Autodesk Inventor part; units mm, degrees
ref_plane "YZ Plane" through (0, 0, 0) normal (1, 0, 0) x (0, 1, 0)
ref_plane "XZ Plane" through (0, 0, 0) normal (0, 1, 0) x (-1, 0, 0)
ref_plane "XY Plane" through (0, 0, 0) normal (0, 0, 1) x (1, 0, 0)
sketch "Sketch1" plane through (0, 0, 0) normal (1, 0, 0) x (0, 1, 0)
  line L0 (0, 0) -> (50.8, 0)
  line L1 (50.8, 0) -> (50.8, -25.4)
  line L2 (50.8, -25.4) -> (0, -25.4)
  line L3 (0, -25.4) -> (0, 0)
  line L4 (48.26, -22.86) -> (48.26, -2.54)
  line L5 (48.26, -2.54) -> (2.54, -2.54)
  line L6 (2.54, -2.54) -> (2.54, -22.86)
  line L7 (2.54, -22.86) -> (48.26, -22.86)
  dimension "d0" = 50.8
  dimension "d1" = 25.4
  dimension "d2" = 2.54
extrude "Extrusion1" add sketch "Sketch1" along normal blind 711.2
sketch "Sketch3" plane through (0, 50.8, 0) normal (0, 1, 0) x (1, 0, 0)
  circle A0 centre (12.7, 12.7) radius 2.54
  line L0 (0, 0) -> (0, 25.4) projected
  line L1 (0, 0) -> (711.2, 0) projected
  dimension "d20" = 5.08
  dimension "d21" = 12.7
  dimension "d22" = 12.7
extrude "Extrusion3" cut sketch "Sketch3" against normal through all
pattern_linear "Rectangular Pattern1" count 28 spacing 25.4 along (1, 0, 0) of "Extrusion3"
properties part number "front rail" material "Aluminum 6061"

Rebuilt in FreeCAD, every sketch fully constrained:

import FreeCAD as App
import Part
import Sketcher
Q = App.Units.Quantity

doc = App.newDocument("Part")
params = doc.addObject("Spreadsheet::Sheet", "Params")
for row, (alias, value) in enumerate([
    ("sketch1_width", "2 in"),
    ("sketch1_height", "1 in"),
    ("pad1_length", "28 in"),
    ("sketch2_diameter", "0.2 in"),
    ("linearpattern_pitch", "1 in"),
], start=1):
    params.set(f"A{row}", alias)
    params.set(f"B{row}", "=" + value)
    params.setAlias(f"B{row}", alias)

body = doc.addObject("PartDesign::Body", "Body")

# Sketch on YZ plane
sketch1 = body.newObject("Sketcher::SketchObject", "Sketch")
sketch1.AttachmentSupport = (doc.getObject("YZ_Plane"), [""])
sketch1.MapMode = "FlatFace"
sketch1.addGeometry(Part.LineSegment(App.Vector(51, 0, 0), App.Vector(0, 0, 0)), False)
sketch1.addGeometry(Part.LineSegment(App.Vector(0, 0, 0), App.Vector(0, -25, 0)), False)
sketch1.addGeometry(Part.LineSegment(App.Vector(0, -25, 0), App.Vector(51, -25, 0)), False)
sketch1.addGeometry(Part.LineSegment(App.Vector(51, -25, 0), App.Vector(51, 0, 0)), False)
sketch1.addGeometry(Part.LineSegment(App.Vector(48, -3, 0), App.Vector(48, -23, 0)), False)
sketch1.addGeometry(Part.LineSegment(App.Vector(48, -23, 0), App.Vector(3, -23, 0)), False)
sketch1.addGeometry(Part.LineSegment(App.Vector(3, -23, 0), App.Vector(3, -3, 0)), False)
sketch1.addGeometry(Part.LineSegment(App.Vector(3, -3, 0), App.Vector(48, -3, 0)), False)
sketch1.addConstraint(Sketcher.Constraint("Coincident", 0, 2, 1, 1))
sketch1.addConstraint(Sketcher.Constraint("Coincident", 1, 2, 2, 1))
sketch1.addConstraint(Sketcher.Constraint("Coincident", 2, 2, 3, 1))
sketch1.addConstraint(Sketcher.Constraint("Coincident", 3, 2, 0, 1))
sketch1.addConstraint(Sketcher.Constraint("Coincident", 4, 2, 5, 1))
sketch1.addConstraint(Sketcher.Constraint("Coincident", 5, 2, 6, 1))
sketch1.addConstraint(Sketcher.Constraint("Coincident", 6, 2, 7, 1))
sketch1.addConstraint(Sketcher.Constraint("Coincident", 7, 2, 4, 1))
sketch1.addConstraint(Sketcher.Constraint("Horizontal", 0))
sketch1.addConstraint(Sketcher.Constraint("Vertical", 1))
sketch1.addConstraint(Sketcher.Constraint("Horizontal", 2))
sketch1.addConstraint(Sketcher.Constraint("Vertical", 3))
sketch1.addConstraint(Sketcher.Constraint("Vertical", 4))
sketch1.addConstraint(Sketcher.Constraint("Horizontal", 5))
sketch1.addConstraint(Sketcher.Constraint("Vertical", 6))
sketch1.addConstraint(Sketcher.Constraint("Horizontal", 7))
sketch1.addConstraint(Sketcher.Constraint("Coincident", 0, 2, -1, 1))
sketch1.addConstraint(Sketcher.Constraint("DistanceX", 0, 2, 0, 1, Q("2 in")))
sketch1.addConstraint(Sketcher.Constraint("DistanceY", 1, 2, 1, 1, Q("1 in")))
sketch1.addConstraint(Sketcher.Constraint("DistanceX", -1, 1, 5, 2, Q("0.1 in")))
sketch1.addConstraint(Sketcher.Constraint("DistanceY", 6, 2, -1, 1, Q("0.1 in")))
sketch1.addConstraint(Sketcher.Constraint("DistanceX", 4, 2, 2, 2, Q("0.1 in")))
sketch1.addConstraint(Sketcher.Constraint("DistanceY", 2, 2, 4, 2, Q("0.1 in")))
sketch1.setExpression("Constraints[17]", "Params.sketch1_width")
sketch1.setExpression("Constraints[18]", "Params.sketch1_height")
pad1 = body.newObject("PartDesign::Pad", "Pad")
pad1.Profile = sketch1
pad1.setExpression("Length", "Params.pad1_length")

# Sketch on XZ plane
sketch2 = body.newObject("Sketcher::SketchObject", "Sketch001")
sketch2.AttachmentSupport = (doc.getObject("XZ_Plane"), [""])
sketch2.MapMode = "FlatFace"
sketch2.AttachmentOffset = App.Placement(App.Vector(0, 0, -2 * 25.4), App.Rotation())
sketch2.addGeometry(Part.Circle(App.Vector(12.7, -12.7, 0), App.Vector(0, 0, 1), 2.5), False)
sketch2.addConstraint(Sketcher.Constraint("Diameter", 0, Q("0.2 in")))
sketch2.addConstraint(Sketcher.Constraint("DistanceX", -1, 1, 0, 3, Q("0.5 in")))
sketch2.addConstraint(Sketcher.Constraint("DistanceY", 0, 3, -1, 1, Q("0.5 in")))
sketch2.setExpression("Constraints[0]", "Params.sketch2_diameter")
pocket1 = body.newObject("PartDesign::Pocket", "Pocket")
pocket1.Profile = sketch2
pocket1.Type = "ThroughAll"
pocket1.Reversed = True
doc.recompute()

linearpattern = body.newObject("PartDesign::LinearPattern", "LinearPattern")
linearpattern.Originals = [pocket1]
linearpattern.Direction = (doc.getObject("X_Axis"), [""])
linearpattern.Mode = "offset"
linearpattern.setExpression("Offset", "Params.linearpattern_pitch")
linearpattern.Occurrences = 28
body.Tip = linearpattern

doc.recompute()
